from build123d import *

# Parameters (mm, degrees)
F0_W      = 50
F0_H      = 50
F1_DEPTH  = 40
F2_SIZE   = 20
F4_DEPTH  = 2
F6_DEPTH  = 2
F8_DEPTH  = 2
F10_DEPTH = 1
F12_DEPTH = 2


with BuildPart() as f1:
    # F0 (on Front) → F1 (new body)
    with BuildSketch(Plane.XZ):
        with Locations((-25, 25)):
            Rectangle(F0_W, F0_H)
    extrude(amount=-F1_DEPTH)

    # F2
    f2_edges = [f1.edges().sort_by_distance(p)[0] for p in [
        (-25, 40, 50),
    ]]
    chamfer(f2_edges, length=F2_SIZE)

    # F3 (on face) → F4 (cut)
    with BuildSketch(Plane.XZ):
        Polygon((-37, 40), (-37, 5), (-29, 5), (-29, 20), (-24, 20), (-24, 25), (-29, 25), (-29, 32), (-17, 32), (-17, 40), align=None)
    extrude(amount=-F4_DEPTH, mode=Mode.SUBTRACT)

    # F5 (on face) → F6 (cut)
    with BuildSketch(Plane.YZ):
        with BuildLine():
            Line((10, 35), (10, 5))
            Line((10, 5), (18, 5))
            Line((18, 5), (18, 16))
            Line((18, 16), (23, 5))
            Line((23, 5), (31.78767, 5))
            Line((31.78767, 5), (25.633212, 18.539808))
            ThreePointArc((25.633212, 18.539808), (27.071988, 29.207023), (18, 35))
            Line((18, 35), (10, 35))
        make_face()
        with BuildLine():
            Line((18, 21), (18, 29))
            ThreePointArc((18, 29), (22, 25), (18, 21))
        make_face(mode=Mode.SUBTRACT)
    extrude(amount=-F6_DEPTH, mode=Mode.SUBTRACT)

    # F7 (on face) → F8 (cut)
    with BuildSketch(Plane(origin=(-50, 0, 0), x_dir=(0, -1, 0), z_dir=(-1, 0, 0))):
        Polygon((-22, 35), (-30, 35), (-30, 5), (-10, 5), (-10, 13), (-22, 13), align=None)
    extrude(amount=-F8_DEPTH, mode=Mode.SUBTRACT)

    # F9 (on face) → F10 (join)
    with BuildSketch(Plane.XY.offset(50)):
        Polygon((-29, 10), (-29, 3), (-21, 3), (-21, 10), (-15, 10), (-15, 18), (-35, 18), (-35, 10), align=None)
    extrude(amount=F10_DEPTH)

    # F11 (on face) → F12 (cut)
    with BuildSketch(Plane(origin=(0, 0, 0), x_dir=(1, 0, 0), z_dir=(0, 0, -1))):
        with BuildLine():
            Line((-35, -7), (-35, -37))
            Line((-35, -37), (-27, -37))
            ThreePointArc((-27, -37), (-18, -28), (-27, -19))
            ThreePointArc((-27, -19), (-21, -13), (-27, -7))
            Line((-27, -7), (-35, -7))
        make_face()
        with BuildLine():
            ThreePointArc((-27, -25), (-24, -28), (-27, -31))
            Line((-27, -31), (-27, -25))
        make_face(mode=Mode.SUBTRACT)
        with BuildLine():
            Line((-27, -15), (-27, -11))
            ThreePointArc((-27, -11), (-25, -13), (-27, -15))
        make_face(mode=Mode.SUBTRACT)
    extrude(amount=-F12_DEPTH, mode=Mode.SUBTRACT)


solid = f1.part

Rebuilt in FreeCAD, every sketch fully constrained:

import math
import FreeCAD as App
import Part
import Sketcher


def edges_at(feature, points):
    """Names of the edges that pass closest to the given points."""
    edges = feature.Shape.Edges
    near = lambda p: min(range(len(edges)), key=lambda i: edges[i].distToShape(Part.Vertex(*p))[0])
    return sorted({f"Edge{near(p) + 1}" for p in points})

doc = App.newDocument("Part")
body = doc.addObject("PartDesign::Body", "Body")

sketch1 = doc.addObject("Sketcher::SketchObject", "Sketch")
body.addObject(sketch1)
sketch1.AttachmentSupport = (doc.XZ_Plane, [""])
sketch1.MapMode = "FlatFace"
sketch1.addGeometry(Part.LineSegment(App.Vector(-50, 50, 0), App.Vector(-50, 0, 0)), False)
sketch1.addGeometry(Part.LineSegment(App.Vector(-50, 0, 0), App.Vector(0, 0, 0)), False)
sketch1.addGeometry(Part.LineSegment(App.Vector(0, 0, 0), App.Vector(0, 50, 0)), False)
sketch1.addGeometry(Part.LineSegment(App.Vector(0, 50, 0), App.Vector(-50, 50, 0)), False)
sketch1.addConstraint(Sketcher.Constraint("Coincident", 0, 2, 1, 1))
sketch1.addConstraint(Sketcher.Constraint("Coincident", 1, 2, 2, 1))
sketch1.addConstraint(Sketcher.Constraint("Coincident", 2, 2, 3, 1))
sketch1.addConstraint(Sketcher.Constraint("Coincident", 3, 2, 0, 1))
sketch1.addConstraint(Sketcher.Constraint("Vertical", 0))
sketch1.addConstraint(Sketcher.Constraint("Horizontal", 1))
sketch1.addConstraint(Sketcher.Constraint("Vertical", 2))
sketch1.addConstraint(Sketcher.Constraint("Horizontal", 3))
sketch1.addConstraint(Sketcher.Constraint("Coincident", 1, 2, -1, 1))
sketch1.addConstraint(Sketcher.Constraint("Equal", 3, 0))
sketch1.addConstraint(Sketcher.Constraint("DistanceX", 1, 1, 1, 2, 50.0))
pad1 = doc.addObject("PartDesign::Pad", "Pad")
body.addObject(pad1)
pad1.Profile = sketch1
pad1.Length = 40
pad1.Reversed = True
doc.recompute()

chamfer = doc.addObject("PartDesign::Chamfer", "Chamfer")
body.addObject(chamfer)
chamfer.Base = (pad1, edges_at(pad1, [(-25, 40, 50)]))
chamfer.Size = 20

sketch2 = doc.addObject("Sketcher::SketchObject", "Sketch001")
body.addObject(sketch2)
sketch2.AttachmentSupport = (doc.XZ_Plane, [""])
sketch2.MapMode = "FlatFace"
sketch2.addGeometry(Part.LineSegment(App.Vector(-37, 40, 0), App.Vector(-37, 5, 0)), False)
sketch2.addGeometry(Part.LineSegment(App.Vector(-37, 5, 0), App.Vector(-29, 5, 0)), False)
sketch2.addGeometry(Part.LineSegment(App.Vector(-29, 5, 0), App.Vector(-29, 20, 0)), False)
sketch2.addGeometry(Part.LineSegment(App.Vector(-29, 20, 0), App.Vector(-24, 20, 0)), False)
sketch2.addGeometry(Part.LineSegment(App.Vector(-24, 20, 0), App.Vector(-24, 25, 0)), False)
sketch2.addGeometry(Part.LineSegment(App.Vector(-24, 25, 0), App.Vector(-29, 25, 0)), False)
sketch2.addGeometry(Part.LineSegment(App.Vector(-29, 25, 0), App.Vector(-29, 32, 0)), False)
sketch2.addGeometry(Part.LineSegment(App.Vector(-29, 32, 0), App.Vector(-17, 32, 0)), False)
sketch2.addGeometry(Part.LineSegment(App.Vector(-17, 32, 0), App.Vector(-17, 40, 0)), False)
sketch2.addGeometry(Part.LineSegment(App.Vector(-17, 40, 0), App.Vector(-37, 40, 0)), False)
sketch2.addConstraint(Sketcher.Constraint("Coincident", 0, 2, 1, 1))
sketch2.addConstraint(Sketcher.Constraint("Coincident", 1, 2, 2, 1))
sketch2.addConstraint(Sketcher.Constraint("Coincident", 2, 2, 3, 1))
sketch2.addConstraint(Sketcher.Constraint("Coincident", 3, 2, 4, 1))
sketch2.addConstraint(Sketcher.Constraint("Coincident", 4, 2, 5, 1))
sketch2.addConstraint(Sketcher.Constraint("Coincident", 5, 2, 6, 1))
sketch2.addConstraint(Sketcher.Constraint("Coincident", 6, 2, 7, 1))
sketch2.addConstraint(Sketcher.Constraint("Coincident", 7, 2, 8, 1))
sketch2.addConstraint(Sketcher.Constraint("Coincident", 8, 2, 9, 1))
sketch2.addConstraint(Sketcher.Constraint("Coincident", 9, 2, 0, 1))
sketch2.addConstraint(Sketcher.Constraint("Vertical", 0))
sketch2.addConstraint(Sketcher.Constraint("Horizontal", 1))
sketch2.addConstraint(Sketcher.Constraint("Vertical", 2))
sketch2.addConstraint(Sketcher.Constraint("Horizontal", 3))
sketch2.addConstraint(Sketcher.Constraint("Vertical", 4))
sketch2.addConstraint(Sketcher.Constraint("Horizontal", 5))
sketch2.addConstraint(Sketcher.Constraint("Vertical", 6))
sketch2.addConstraint(Sketcher.Constraint("Horizontal", 7))
sketch2.addConstraint(Sketcher.Constraint("Vertical", 8))
sketch2.addConstraint(Sketcher.Constraint("Horizontal", 9))
sketch2.addConstraint(Sketcher.Constraint("Vertical", 2, 2, 5, 2))
sketch2.addConstraint(Sketcher.Constraint("Equal", 5, 4))
sketch2.addConstraint(Sketcher.Constraint("Equal", 1, 8))
sketch2.addConstraint(Sketcher.Constraint("DistanceX", 1, 1, 1, 2, 8.0))
sketch2.addConstraint(Sketcher.Constraint("DistanceX", 3, 1, 3, 2, 5.0))
sketch2.addConstraint(Sketcher.Constraint("DistanceX", 7, 1, 7, 2, 12.0))
sketch2.addConstraint(Sketcher.Constraint("DistanceY", 0, 2, 0, 1, 35.0))
sketch2.addConstraint(Sketcher.Constraint("DistanceY", 2, 1, 2, 2, 15.0))
sketch2.addConstraint(Sketcher.Constraint("DistanceX", 0, 2, -1, 1, 37.0))
sketch2.addConstraint(Sketcher.Constraint("DistanceY", -1, 1, 0, 2, 5.0))
pocket1 = doc.addObject("PartDesign::Pocket", "Pocket")
body.addObject(pocket1)
pocket1.Profile = sketch2
pocket1.Length = 2

sketch3 = doc.addObject("Sketcher::SketchObject", "Sketch002")
body.addObject(sketch3)
sketch3.AttachmentSupport = (doc.YZ_Plane, [""])
sketch3.MapMode = "FlatFace"
sketch3.addGeometry(Part.LineSegment(App.Vector(10, 35, 0), App.Vector(10, 5, 0)), False)
sketch3.addGeometry(Part.LineSegment(App.Vector(10, 5, 0), App.Vector(18, 5, 0)), False)
sketch3.addGeometry(Part.LineSegment(App.Vector(18, 5, 0), App.Vector(18, 16, 0)), False)
sketch3.addGeometry(Part.LineSegment(App.Vector(18, 16, 0), App.Vector(23, 5, 0)), False)
sketch3.addGeometry(Part.LineSegment(App.Vector(23, 5, 0), App.Vector(31.8, 5, 0)), False)
sketch3.addGeometry(Part.LineSegment(App.Vector(31.8, 5, 0), App.Vector(25.6, 18.5, 0)), False)
sketch3.addGeometry(Part.ArcOfCircle(Part.Circle(App.Vector(18, 25, 0), App.Vector(0, 0, 1), 10), math.radians(-40), math.radians(90)), False)
sketch3.addGeometry(Part.LineSegment(App.Vector(18, 35, 0), App.Vector(10, 35, 0)), False)
sketch3.addGeometry(Part.ArcOfCircle(Part.Circle(App.Vector(18, 25, 0), App.Vector(0, 0, 1), 4), math.radians(-90), math.radians(90)), False)
sketch3.addGeometry(Part.LineSegment(App.Vector(18, 21, 0), App.Vector(18, 29, 0)), False)
sketch3.addConstraint(Sketcher.Constraint("Coincident", 0, 2, 1, 1))
sketch3.addConstraint(Sketcher.Constraint("Coincident", 1, 2, 2, 1))
sketch3.addConstraint(Sketcher.Constraint("Coincident", 2, 2, 3, 1))
sketch3.addConstraint(Sketcher.Constraint("Coincident", 3, 2, 4, 1))
sketch3.addConstraint(Sketcher.Constraint("Coincident", 4, 2, 5, 1))
sketch3.addConstraint(Sketcher.Constraint("Coincident", 5, 2, 6, 1))
sketch3.addConstraint(Sketcher.Constraint("Tangent", 6, 2, 7, 1))
sketch3.addConstraint(Sketcher.Constraint("Coincident", 7, 2, 0, 1))
sketch3.addConstraint(Sketcher.Constraint("Coincident", 8, 1, 9, 1))
sketch3.addConstraint(Sketcher.Constraint("Coincident", 9, 2, 8, 2))
sketch3.addConstraint(Sketcher.Constraint("Vertical", 0))
sketch3.addConstraint(Sketcher.Constraint("Horizontal", 1))
sketch3.addConstraint(Sketcher.Constraint("Vertical", 2))
sketch3.addConstraint(Sketcher.Constraint("Horizontal", 4))
sketch3.addConstraint(Sketcher.Constraint("Horizontal", 7))
sketch3.addConstraint(Sketcher.Constraint("Vertical", 9))
sketch3.addConstraint(Sketcher.Constraint("Coincident", 8, 3, 6, 3))
sketch3.addConstraint(Sketcher.Constraint("Parallel", 3, 5))
sketch3.addConstraint(Sketcher.Constraint("Horizontal", 1, 2, 3, 2))
sketch3.addConstraint(Sketcher.Constraint("Vertical", 8, 3, 1, 2))
sketch3.addConstraint(Sketcher.Constraint("Vertical", 6, 2, 8, 1))
sketch3.addConstraint(Sketcher.Constraint("Equal", 7, 9))
sketch3.addConstraint(Sketcher.Constraint("Radius", 6, 10.0))
sketch3.addConstraint(Sketcher.Constraint("Radius", 8, 4.0))
sketch3.addConstraint(Sketcher.Constraint("DistanceY", 0, 2, 0, 1, 30.0))
sketch3.addConstraint(Sketcher.Constraint("DistanceY", 2, 1, 2, 2, 11.0))
sketch3.addConstraint(Sketcher.Constraint("DistanceX", -1, 1, 6, 3, 18.000001))
sketch3.addConstraint(Sketcher.Constraint("DistanceY", -1, 1, 6, 3, 25.0))
sketch3.addConstraint(Sketcher.Constraint("DistanceX", -1, 1, 3, 2, 23.0))
sketch3.addConstraint(Sketcher.Constraint("DistanceX", 4, 1, 4, 2, 8.78767))
pocket2 = doc.addObject("PartDesign::Pocket", "Pocket001")
body.addObject(pocket2)
pocket2.Profile = sketch3
pocket2.Length = 2

sketch4 = doc.addObject("Sketcher::SketchObject", "Sketch003")
body.addObject(sketch4)
sketch4.AttachmentSupport = (doc.YZ_Plane, [""])
sketch4.MapMode = "FlatFace"
sketch4.AttachmentOffset = App.Placement(App.Vector(0, 0, -50), App.Rotation())
sketch4.addGeometry(Part.LineSegment(App.Vector(22, 35, 0), App.Vector(30, 35, 0)), False)
sketch4.addGeometry(Part.LineSegment(App.Vector(30, 35, 0), App.Vector(30, 5, 0)), False)
sketch4.addGeometry(Part.LineSegment(App.Vector(30, 5, 0), App.Vector(10, 5, 0)), False)
sketch4.addGeometry(Part.LineSegment(App.Vector(10, 5, 0), App.Vector(10, 13, 0)), False)
sketch4.addGeometry(Part.LineSegment(App.Vector(10, 13, 0), App.Vector(22, 13, 0)), False)
sketch4.addGeometry(Part.LineSegment(App.Vector(22, 13, 0), App.Vector(22, 35, 0)), False)
sketch4.addConstraint(Sketcher.Constraint("Coincident", 0, 2, 1, 1))
sketch4.addConstraint(Sketcher.Constraint("Coincident", 1, 2, 2, 1))
sketch4.addConstraint(Sketcher.Constraint("Coincident", 2, 2, 3, 1))
sketch4.addConstraint(Sketcher.Constraint("Coincident", 3, 2, 4, 1))
sketch4.addConstraint(Sketcher.Constraint("Coincident", 4, 2, 5, 1))
sketch4.addConstraint(Sketcher.Constraint("Coincident", 5, 2, 0, 1))
sketch4.addConstraint(Sketcher.Constraint("Horizontal", 0))
sketch4.addConstraint(Sketcher.Constraint("Vertical", 1))
sketch4.addConstraint(Sketcher.Constraint("Horizontal", 2))
sketch4.addConstraint(Sketcher.Constraint("Vertical", 3))
sketch4.addConstraint(Sketcher.Constraint("Horizontal", 4))
sketch4.addConstraint(Sketcher.Constraint("Vertical", 5))
sketch4.addConstraint(Sketcher.Constraint("Equal", 0, 3))
sketch4.addConstraint(Sketcher.Constraint("DistanceX", 0, 1, 0, 2, 8.0))
sketch4.addConstraint(Sketcher.Constraint("DistanceX", 2, 2, 2, 1, 20.0))
sketch4.addConstraint(Sketcher.Constraint("DistanceY", 1, 2, 1, 1, 30.0))
sketch4.addConstraint(Sketcher.Constraint("DistanceX", -1, 1, 0, 2, 30.0))
sketch4.addConstraint(Sketcher.Constraint("DistanceY", -1, 1, 0, 2, 35.0))
pocket3 = doc.addObject("PartDesign::Pocket", "Pocket002")
body.addObject(pocket3)
pocket3.Profile = sketch4
pocket3.Length = 2
pocket3.Reversed = True

sketch5 = doc.addObject("Sketcher::SketchObject", "Sketch004")
body.addObject(sketch5)
sketch5.AttachmentSupport = (doc.XY_Plane, [""])
sketch5.MapMode = "FlatFace"
sketch5.AttachmentOffset = App.Placement(App.Vector(0, 0, 50), App.Rotation())
sketch5.addGeometry(Part.LineSegment(App.Vector(-29, 10, 0), App.Vector(-29, 3, 0)), False)
sketch5.addGeometry(Part.LineSegment(App.Vector(-29, 3, 0), App.Vector(-21, 3, 0)), False)
sketch5.addGeometry(Part.LineSegment(App.Vector(-21, 3, 0), App.Vector(-21, 10, 0)), False)
sketch5.addGeometry(Part.LineSegment(App.Vector(-21, 10, 0), App.Vector(-15, 10, 0)), False)
sketch5.addGeometry(Part.LineSegment(App.Vector(-15, 10, 0), App.Vector(-15, 18, 0)), False)
sketch5.addGeometry(Part.LineSegment(App.Vector(-15, 18, 0), App.Vector(-35, 18, 0)), False)
sketch5.addGeometry(Part.LineSegment(App.Vector(-35, 18, 0), App.Vector(-35, 10, 0)), False)
sketch5.addGeometry(Part.LineSegment(App.Vector(-35, 10, 0), App.Vector(-29, 10, 0)), False)
sketch5.addConstraint(Sketcher.Constraint("Coincident", 0, 2, 1, 1))
sketch5.addConstraint(Sketcher.Constraint("Coincident", 1, 2, 2, 1))
sketch5.addConstraint(Sketcher.Constraint("Coincident", 2, 2, 3, 1))
sketch5.addConstraint(Sketcher.Constraint("Coincident", 3, 2, 4, 1))
sketch5.addConstraint(Sketcher.Constraint("Coincident", 4, 2, 5, 1))
sketch5.addConstraint(Sketcher.Constraint("Coincident", 5, 2, 6, 1))
sketch5.addConstraint(Sketcher.Constraint("Coincident", 6, 2, 7, 1))
sketch5.addConstraint(Sketcher.Constraint("Coincident", 7, 2, 0, 1))
sketch5.addConstraint(Sketcher.Constraint("Vertical", 0))
sketch5.addConstraint(Sketcher.Constraint("Horizontal", 1))
sketch5.addConstraint(Sketcher.Constraint("Vertical", 2))
sketch5.addConstraint(Sketcher.Constraint("Horizontal", 3))
sketch5.addConstraint(Sketcher.Constraint("Vertical", 4))
sketch5.addConstraint(Sketcher.Constraint("Horizontal", 5))
sketch5.addConstraint(Sketcher.Constraint("Vertical", 6))
sketch5.addConstraint(Sketcher.Constraint("Horizontal", 7))
sketch5.addConstraint(Sketcher.Constraint("Horizontal", 3, 2, 6, 2))
sketch5.addConstraint(Sketcher.Constraint("Equal", 3, 7))
sketch5.addConstraint(Sketcher.Constraint("Equal", 1, 4))
sketch5.addConstraint(Sketcher.Constraint("DistanceX", 1, 1, 1, 2, 8.0))
sketch5.addConstraint(Sketcher.Constraint("DistanceX", 3, 1, 3, 2, 6.0))
sketch5.addConstraint(Sketcher.Constraint("DistanceY", 0, 2, 0, 1, 7.0))
sketch5.addConstraint(Sketcher.Constraint("DistanceX", 0, 2, -1, 1, 29.0))
sketch5.addConstraint(Sketcher.Constraint("DistanceY", -1, 1, 0, 2, 3.0))
pad2 = doc.addObject("PartDesign::Pad", "Pad001")
body.addObject(pad2)
pad2.Profile = sketch5
pad2.Length = 1

sketch6 = doc.addObject("Sketcher::SketchObject", "Sketch005")
body.addObject(sketch6)
sketch6.AttachmentSupport = (doc.XY_Plane, [""])
sketch6.MapMode = "FlatFace"
sketch6.addGeometry(Part.LineSegment(App.Vector(-35, 7, 0), App.Vector(-35, 37, 0)), False)
sketch6.addGeometry(Part.LineSegment(App.Vector(-35, 37, 0), App.Vector(-27, 37, 0)), False)
sketch6.addGeometry(Part.ArcOfCircle(Part.Circle(App.Vector(-27, 28, 0), App.Vector(0, 0, 1), 9), math.radians(-90), math.radians(90)), False)
sketch6.addGeometry(Part.ArcOfCircle(Part.Circle(App.Vector(-27, 13, 0), App.Vector(0, 0, 1), 6), math.radians(-90), math.radians(90)), False)
sketch6.addGeometry(Part.LineSegment(App.Vector(-27, 7, 0), App.Vector(-35, 7, 0)), False)
sketch6.addGeometry(Part.LineSegment(App.Vector(-27, 31, 0), App.Vector(-27, 25, 0)), False)
sketch6.addGeometry(Part.ArcOfCircle(Part.Circle(App.Vector(-27, 28, 0), App.Vector(0, 0, 1), 3), math.radians(-90), math.radians(90)), False)
sketch6.addGeometry(Part.ArcOfCircle(Part.Circle(App.Vector(-27, 13, 0), App.Vector(0, 0, 1), 2), math.radians(-90), math.radians(90)), False)
sketch6.addGeometry(Part.LineSegment(App.Vector(-27, 15, 0), App.Vector(-27, 11, 0)), False)
sketch6.addConstraint(Sketcher.Constraint("Coincident", 0, 2, 1, 1))
sketch6.addConstraint(Sketcher.Constraint("Tangent", 1, 2, 2, 2))
sketch6.addConstraint(Sketcher.Constraint("Tangent", 2, 1, 3, 2))
sketch6.addConstraint(Sketcher.Constraint("Tangent", 3, 1, 4, 1))
sketch6.addConstraint(Sketcher.Constraint("Coincident", 4, 2, 0, 1))
sketch6.addConstraint(Sketcher.Constraint("Coincident", 5, 1, 6, 2))
sketch6.addConstraint(Sketcher.Constraint("Coincident", 6, 1, 5, 2))
sketch6.addConstraint(Sketcher.Constraint("Coincident", 7, 1, 8, 2))
sketch6.addConstraint(Sketcher.Constraint("Coincident", 8, 1, 7, 2))
sketch6.addConstraint(Sketcher.Constraint("Vertical", 0))
sketch6.addConstraint(Sketcher.Constraint("Horizontal", 1))
sketch6.addConstraint(Sketcher.Constraint("Horizontal", 4))
sketch6.addConstraint(Sketcher.Constraint("Vertical", 5))
sketch6.addConstraint(Sketcher.Constraint("Vertical", 8))
sketch6.addConstraint(Sketcher.Constraint("Coincident", 6, 3, 2, 3))
sketch6.addConstraint(Sketcher.Constraint("Coincident", 7, 3, 3, 3))
sketch6.addConstraint(Sketcher.Constraint("Vertical", 2, 3, 3, 3))
sketch6.addConstraint(Sketcher.Constraint("Vertical", 3, 1, 5, 1))
sketch6.addConstraint(Sketcher.Constraint("Vertical", 6, 1, 7, 1))
sketch6.addConstraint(Sketcher.Constraint("Radius", 2, 9.0))
sketch6.addConstraint(Sketcher.Constraint("Radius", 3, 6.0))
sketch6.addConstraint(Sketcher.Constraint("Radius", 6, 3.0))
sketch6.addConstraint(Sketcher.Constraint("Radius", 7, 2.0))
sketch6.addConstraint(Sketcher.Constraint("DistanceX", 1, 1, 1, 2, 8.0))
sketch6.addConstraint(Sketcher.Constraint("DistanceX", 2, 3, -1, 1, 27.0))
sketch6.addConstraint(Sketcher.Constraint("DistanceY", -1, 1, 2, 3, 28.0))
pocket4 = doc.addObject("PartDesign::Pocket", "Pocket003")
body.addObject(pocket4)
pocket4.Profile = sketch6
pocket4.Length = 2
pocket4.Reversed = True

doc.recompute()
